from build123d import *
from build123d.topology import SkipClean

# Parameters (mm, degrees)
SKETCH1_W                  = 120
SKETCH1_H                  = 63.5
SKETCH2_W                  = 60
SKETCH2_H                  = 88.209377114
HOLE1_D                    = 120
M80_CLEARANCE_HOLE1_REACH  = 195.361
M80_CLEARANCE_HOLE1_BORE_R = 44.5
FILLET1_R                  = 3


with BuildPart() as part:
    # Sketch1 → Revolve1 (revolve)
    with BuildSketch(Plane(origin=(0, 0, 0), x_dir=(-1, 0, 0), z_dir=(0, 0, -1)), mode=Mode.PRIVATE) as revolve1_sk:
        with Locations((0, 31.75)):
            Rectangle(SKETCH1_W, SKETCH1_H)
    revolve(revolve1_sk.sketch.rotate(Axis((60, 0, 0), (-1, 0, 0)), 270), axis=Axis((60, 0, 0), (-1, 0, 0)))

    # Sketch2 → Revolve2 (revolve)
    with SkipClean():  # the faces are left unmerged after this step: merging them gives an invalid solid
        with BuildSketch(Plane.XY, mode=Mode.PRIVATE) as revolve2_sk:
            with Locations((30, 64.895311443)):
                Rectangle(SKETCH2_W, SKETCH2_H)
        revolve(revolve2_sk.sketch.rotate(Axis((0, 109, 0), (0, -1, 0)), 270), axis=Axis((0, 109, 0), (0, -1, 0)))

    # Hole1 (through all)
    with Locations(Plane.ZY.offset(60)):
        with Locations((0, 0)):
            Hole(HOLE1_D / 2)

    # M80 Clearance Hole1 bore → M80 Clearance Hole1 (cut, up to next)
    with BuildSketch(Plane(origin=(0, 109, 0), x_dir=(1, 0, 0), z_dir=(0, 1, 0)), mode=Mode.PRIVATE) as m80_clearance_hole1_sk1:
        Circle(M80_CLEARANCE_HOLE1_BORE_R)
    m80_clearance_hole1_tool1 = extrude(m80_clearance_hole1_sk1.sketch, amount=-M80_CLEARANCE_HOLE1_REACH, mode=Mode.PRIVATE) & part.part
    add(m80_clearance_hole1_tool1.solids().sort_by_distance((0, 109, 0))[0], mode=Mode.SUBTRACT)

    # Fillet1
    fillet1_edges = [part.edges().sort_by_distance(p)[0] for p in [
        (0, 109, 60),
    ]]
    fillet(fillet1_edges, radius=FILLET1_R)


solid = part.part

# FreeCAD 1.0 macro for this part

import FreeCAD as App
import Part
import Sketcher
Q = App.Units.Quantity


def edges_at(feature, points):
    """Names of the edges that pass closest to the given points."""
    edges = feature.Shape.Edges
    near = lambda p: min(range(len(edges)), key=lambda i: edges[i].distToShape(Part.Vertex(*p))[0])
    return sorted({f"Edge{near(p) + 1}" for p in points})


def add_polygon(sketch, points):
    """Adds a closed chain of lines whose ends are joined by coincident constraints."""
    first, n = sketch.GeometryCount, len(points)
    for a, b in zip(points, points[1:] + points[:1]):
        sketch.addGeometry(Part.LineSegment(App.Vector(*a, 0), App.Vector(*b, 0)), False)
    for i in range(n):
        sketch.addConstraint(Sketcher.Constraint("Coincident", first + i, 2, first + (i + 1) % n, 1))

doc = App.newDocument("Part")
body = doc.addObject("PartDesign::Body", "Body")

sketch1 = doc.addObject("Sketcher::SketchObject", "Sketch")
body.addObject(sketch1)
sketch1.AttachmentSupport = (doc.XY_Plane, [""])
sketch1.MapMode = "FlatFace"
add_polygon(sketch1, [(60, 64), (60, 0), (-60, 0), (-60, 64)])
sketch1.addConstraint([
    Sketcher.Constraint("Vertical", 0),
    Sketcher.Constraint("Horizontal", 1),
    Sketcher.Constraint("Vertical", 2),
    Sketcher.Constraint("Horizontal", 3),
    Sketcher.Constraint("Symmetric", 0, 2, 1, 2, -1, 1),
    Sketcher.Constraint("DistanceX", 1, 2, 1, 1, Q("120 mm")),
    Sketcher.Constraint("DistanceY", 0, 2, 0, 1, Q("63.5 mm")),
])
revolution = doc.addObject("PartDesign::Revolution", "Revolution")
body.addObject(revolution)
revolution.Profile = sketch1
revolution.ReferenceAxis = (sketch1, ["H_Axis"])
revolution.Angle = 360

sketch2 = doc.addObject("Sketcher::SketchObject", "Sketch001")
body.addObject(sketch2)
sketch2.AttachmentSupport = (doc.XY_Plane, [""])
sketch2.MapMode = "FlatFace"
add_polygon(sketch2, [(0, 109), (0, 21), (60, 21), (60, 109)])
sketch2.addConstraint([
    Sketcher.Constraint("Vertical", 0),
    Sketcher.Constraint("Horizontal", 1),
    Sketcher.Constraint("Vertical", 2),
    Sketcher.Constraint("Horizontal", 3),
    Sketcher.Constraint("PointOnObject", 0, 2, -2),
    Sketcher.Constraint("DistanceX", 1, 1, 1, 2, Q("60 mm")),
    Sketcher.Constraint("DistanceY", -1, 1, 2, 2, Q("109 mm")),
    Sketcher.Constraint("DistanceY", 0, 2, 0, 1, Q("88.209377 mm")),
])
revolution2 = doc.addObject("PartDesign::Revolution", "Revolution001")
body.addObject(revolution2)
revolution2.Profile = sketch2
revolution2.ReferenceAxis = (sketch2, ["V_Axis"])
revolution2.Angle = 360

sketch3 = doc.addObject("Sketcher::SketchObject", "Sketch002")
body.addObject(sketch3)
sketch3.AttachmentSupport = (doc.YZ_Plane, [""])
sketch3.MapMode = "FlatFace"
sketch3.AttachmentOffset = App.Placement(App.Vector(0, 0, -60), App.Rotation())
sketch3.addGeometry(Part.Circle(App.Vector(0, 0, 0), App.Vector(0, 0, 1), 60), False)
sketch3.addConstraint([
    Sketcher.Constraint("Coincident", 0, 3, -1, 1),
    Sketcher.Constraint("Diameter", 0, Q("120 mm")),
])
doc.recompute()
hole = doc.addObject("PartDesign::Hole", "Hole")
body.addObject(hole)
hole.Profile = sketch3
hole.ThreadType = "None"
hole.Diameter = 120
hole.DepthType = "ThroughAll"
hole.Reversed = True

sketch4 = doc.addObject("Sketcher::SketchObject", "Sketch003")
body.addObject(sketch4)
sketch4.AttachmentSupport = (doc.XZ_Plane, [""])
sketch4.MapMode = "FlatFace"
sketch4.AttachmentOffset = App.Placement(App.Vector(0, 0, -109), App.Rotation())
sketch4.addGeometry(Part.Circle(App.Vector(0, 0, 0), App.Vector(0, 0, 1), 44), False)
sketch4.addConstraint([
    Sketcher.Constraint("Coincident", 0, 3, -1, 1),
    Sketcher.Constraint("Diameter", 0, Q("89 mm")),
])
pocket1 = doc.addObject("PartDesign::Pocket", "Pocket")
body.addObject(pocket1)
pocket1.Profile = sketch4
pocket1.Type = "UpToFirst"
pocket1.Reversed = True
doc.recompute()

fillet = doc.addObject("PartDesign::Fillet", "Fillet")
body.addObject(fillet)
fillet.Base = (pocket1, edges_at(pocket1, [(0, 109, 60)]))
fillet.Radius = 3

doc.recompute()
